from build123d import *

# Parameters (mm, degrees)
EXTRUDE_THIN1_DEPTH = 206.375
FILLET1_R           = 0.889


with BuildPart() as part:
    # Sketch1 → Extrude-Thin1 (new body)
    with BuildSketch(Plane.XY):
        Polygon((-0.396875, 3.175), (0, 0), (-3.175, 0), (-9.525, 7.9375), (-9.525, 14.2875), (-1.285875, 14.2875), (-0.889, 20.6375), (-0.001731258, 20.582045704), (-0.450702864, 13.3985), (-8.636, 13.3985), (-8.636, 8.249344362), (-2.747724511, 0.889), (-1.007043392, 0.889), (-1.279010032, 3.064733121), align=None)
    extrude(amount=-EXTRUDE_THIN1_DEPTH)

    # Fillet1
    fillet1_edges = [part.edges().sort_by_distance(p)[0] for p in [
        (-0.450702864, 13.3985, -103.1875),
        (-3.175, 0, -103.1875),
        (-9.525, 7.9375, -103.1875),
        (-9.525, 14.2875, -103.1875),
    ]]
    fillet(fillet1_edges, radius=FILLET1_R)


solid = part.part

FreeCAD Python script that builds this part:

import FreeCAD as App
import Part
import Sketcher
from FreeCAD import Vector
Q = App.Units.Quantity


def edges_at(feature, points):
    """Names of the edges that pass closest to the given points."""
    edges = feature.Shape.Edges
    near = lambda p: min(range(len(edges)), key=lambda i: edges[i].distToShape(Part.Vertex(*p))[0])
    return sorted({f"Edge{near(p) + 1}" for p in points})


def add_polygon(sketch, points):
    """Adds a closed chain of lines whose ends are joined by coincident constraints."""
    first, n = sketch.GeometryCount, len(points)
    for a, b in zip(points, points[1:] + points[:1]):
        sketch.addGeometry(Part.LineSegment(App.Vector(*a, 0), App.Vector(*b, 0)), False)
    for i in range(n):
        sketch.addConstraint(Sketcher.Constraint("Coincident", first + i, 2, first + (i + 1) % n, 1))

doc = App.newDocument("Part")
params = doc.addObject("Spreadsheet::Sheet", "Params")
for row, (alias, value) in enumerate([
    ("sketch1_height", "0.25 in"),
    ("sketch1_width", "0.125 in"),
    ("sketch1_length", "0.035 in"),
    ("pad1_length", "8.125 in"),
    ("fillet_radius", "0.035 in"),
], start=1):
    params.set(f"A{row}", alias)
    params.set(f"B{row}", "=" + value)
    params.setAlias(f"B{row}", alias)

body = doc.addObject("PartDesign::Body", "Body")

# Sketch on XY plane
sketch1 = body.newObject("Sketcher::SketchObject", "Sketch")
sketch1.AttachmentSupport = (doc.getObject("XY_Plane"), [""])
sketch1.MapMode = "FlatFace"
add_polygon(sketch1, [(0, 0), (-0.4, 3.2), (-1.3, 3.1), (-1, 0.9), (-2.7, 0.9), (-8.6, 8.2), (-8.6, 13.4), (-0.5, 13.4), (0, 20.6), (-0.9, 20.6), (-1.3, 14.3), (-9.5, 14.3), (-9.5, 7.9), (-3.2, 0)])  # lines 0-13
sketch1.addConstraint(Sketcher.Constraint("Horizontal", 3))
sketch1.addConstraint(Sketcher.Constraint("Vertical", 5))
sketch1.addConstraint(Sketcher.Constraint("Horizontal", 6))
sketch1.addConstraint(Sketcher.Constraint("Horizontal", 10))
sketch1.addConstraint(Sketcher.Constraint("Vertical", 11))
sketch1.addConstraint(Sketcher.Constraint("Horizontal", 13))
sketch1.addConstraint(Sketcher.Constraint("Coincident", 13, 2, -1, 1))
sketch1.addConstraint(Sketcher.Constraint("Perpendicular", 0, 1))
sketch1.addConstraint(Sketcher.Constraint("Perpendicular", 1, 2))
sketch1.addConstraint(Sketcher.Constraint("Perpendicular", 7, 8))
sketch1.addConstraint(Sketcher.Constraint("Perpendicular", 8, 9))
sketch1.addConstraint(Sketcher.Constraint("Parallel", 4, 12))
sketch1.addConstraint(Sketcher.Constraint("Equal", 1, 8))
sketch1.addConstraint(Sketcher.Constraint("DistanceY", 11, 2, 11, 1, Q("0.25 in")))
sketch1.addConstraint(Sketcher.Constraint("DistanceX", 13, 1, 13, 2, Q("0.125 in")))
sketch1.addConstraint(Sketcher.Constraint("DistanceX", 4, 2, -1, 1, Q("0.34 in")))
sketch1.addConstraint(Sketcher.Constraint("DistanceY", 2, 2, 0, 2, Q("0.09 in")))
sketch1.addConstraint(Sketcher.Constraint("DistanceY", 9, 2, 8, 2, Q("0.25 in")))
sketch1.addConstraint(Sketcher.Constraint("DistanceX", 10, 2, 8, 2, Q("0.34 in")))
sketch1.addConstraint(Sketcher.Constraint("Distance", 1, Q("0.035 in")))
sketch1.addConstraint(Sketcher.Constraint("DistanceX", 0, 2, -1, 1, Q("0.015625 in")))
sketch1.addConstraint(Sketcher.Constraint("DistanceY", -1, 1, 0, 2, Q("0.125 in")))
sketch1.addConstraint(Sketcher.Constraint("DistanceX", 8, 2, -1, 1, Q("0.035 in")))
sketch1.addConstraint(Sketcher.Constraint("DistanceY", -1, 1, 8, 2, Q("0.8125 in")))
sketch1.addConstraint(Sketcher.Constraint("DistanceY", 6, 2, 8, 2, Q("0.285 in")))
sketch1.addConstraint(Sketcher.Constraint("DistanceX", 9, 2, 8, 2, Q("0.015625 in")))
sketch1.addConstraint(Sketcher.Constraint("DistanceX", 3, 2, 3, 1, Q("1.740681 mm")))
sketch1.setExpression("Constraints[27]", "Params.sketch1_height")
sketch1.setExpression("Constraints[28]", "Params.sketch1_width")
sketch1.setExpression("Constraints[33]", "Params.sketch1_length")
pad1 = body.newObject("PartDesign::Pad", "Pad")
pad1.Profile = sketch1
pad1.setExpression("Length", "Params.pad1_length")
pad1.Reversed = True
doc.recompute()

fillet = body.newObject("PartDesign::Fillet", "Fillet")
fillet.Base = (pad1, edges_at(pad1, [
    (-0.451, 13.399, -103.188),
    (-3.175, 0, -103.188),
    (-9.525, 7.938, -103.188),
    (-9.525, 14.287, -103.188),
]))
fillet.setExpression("Radius", "Params.fillet_radius")

doc.recompute()
